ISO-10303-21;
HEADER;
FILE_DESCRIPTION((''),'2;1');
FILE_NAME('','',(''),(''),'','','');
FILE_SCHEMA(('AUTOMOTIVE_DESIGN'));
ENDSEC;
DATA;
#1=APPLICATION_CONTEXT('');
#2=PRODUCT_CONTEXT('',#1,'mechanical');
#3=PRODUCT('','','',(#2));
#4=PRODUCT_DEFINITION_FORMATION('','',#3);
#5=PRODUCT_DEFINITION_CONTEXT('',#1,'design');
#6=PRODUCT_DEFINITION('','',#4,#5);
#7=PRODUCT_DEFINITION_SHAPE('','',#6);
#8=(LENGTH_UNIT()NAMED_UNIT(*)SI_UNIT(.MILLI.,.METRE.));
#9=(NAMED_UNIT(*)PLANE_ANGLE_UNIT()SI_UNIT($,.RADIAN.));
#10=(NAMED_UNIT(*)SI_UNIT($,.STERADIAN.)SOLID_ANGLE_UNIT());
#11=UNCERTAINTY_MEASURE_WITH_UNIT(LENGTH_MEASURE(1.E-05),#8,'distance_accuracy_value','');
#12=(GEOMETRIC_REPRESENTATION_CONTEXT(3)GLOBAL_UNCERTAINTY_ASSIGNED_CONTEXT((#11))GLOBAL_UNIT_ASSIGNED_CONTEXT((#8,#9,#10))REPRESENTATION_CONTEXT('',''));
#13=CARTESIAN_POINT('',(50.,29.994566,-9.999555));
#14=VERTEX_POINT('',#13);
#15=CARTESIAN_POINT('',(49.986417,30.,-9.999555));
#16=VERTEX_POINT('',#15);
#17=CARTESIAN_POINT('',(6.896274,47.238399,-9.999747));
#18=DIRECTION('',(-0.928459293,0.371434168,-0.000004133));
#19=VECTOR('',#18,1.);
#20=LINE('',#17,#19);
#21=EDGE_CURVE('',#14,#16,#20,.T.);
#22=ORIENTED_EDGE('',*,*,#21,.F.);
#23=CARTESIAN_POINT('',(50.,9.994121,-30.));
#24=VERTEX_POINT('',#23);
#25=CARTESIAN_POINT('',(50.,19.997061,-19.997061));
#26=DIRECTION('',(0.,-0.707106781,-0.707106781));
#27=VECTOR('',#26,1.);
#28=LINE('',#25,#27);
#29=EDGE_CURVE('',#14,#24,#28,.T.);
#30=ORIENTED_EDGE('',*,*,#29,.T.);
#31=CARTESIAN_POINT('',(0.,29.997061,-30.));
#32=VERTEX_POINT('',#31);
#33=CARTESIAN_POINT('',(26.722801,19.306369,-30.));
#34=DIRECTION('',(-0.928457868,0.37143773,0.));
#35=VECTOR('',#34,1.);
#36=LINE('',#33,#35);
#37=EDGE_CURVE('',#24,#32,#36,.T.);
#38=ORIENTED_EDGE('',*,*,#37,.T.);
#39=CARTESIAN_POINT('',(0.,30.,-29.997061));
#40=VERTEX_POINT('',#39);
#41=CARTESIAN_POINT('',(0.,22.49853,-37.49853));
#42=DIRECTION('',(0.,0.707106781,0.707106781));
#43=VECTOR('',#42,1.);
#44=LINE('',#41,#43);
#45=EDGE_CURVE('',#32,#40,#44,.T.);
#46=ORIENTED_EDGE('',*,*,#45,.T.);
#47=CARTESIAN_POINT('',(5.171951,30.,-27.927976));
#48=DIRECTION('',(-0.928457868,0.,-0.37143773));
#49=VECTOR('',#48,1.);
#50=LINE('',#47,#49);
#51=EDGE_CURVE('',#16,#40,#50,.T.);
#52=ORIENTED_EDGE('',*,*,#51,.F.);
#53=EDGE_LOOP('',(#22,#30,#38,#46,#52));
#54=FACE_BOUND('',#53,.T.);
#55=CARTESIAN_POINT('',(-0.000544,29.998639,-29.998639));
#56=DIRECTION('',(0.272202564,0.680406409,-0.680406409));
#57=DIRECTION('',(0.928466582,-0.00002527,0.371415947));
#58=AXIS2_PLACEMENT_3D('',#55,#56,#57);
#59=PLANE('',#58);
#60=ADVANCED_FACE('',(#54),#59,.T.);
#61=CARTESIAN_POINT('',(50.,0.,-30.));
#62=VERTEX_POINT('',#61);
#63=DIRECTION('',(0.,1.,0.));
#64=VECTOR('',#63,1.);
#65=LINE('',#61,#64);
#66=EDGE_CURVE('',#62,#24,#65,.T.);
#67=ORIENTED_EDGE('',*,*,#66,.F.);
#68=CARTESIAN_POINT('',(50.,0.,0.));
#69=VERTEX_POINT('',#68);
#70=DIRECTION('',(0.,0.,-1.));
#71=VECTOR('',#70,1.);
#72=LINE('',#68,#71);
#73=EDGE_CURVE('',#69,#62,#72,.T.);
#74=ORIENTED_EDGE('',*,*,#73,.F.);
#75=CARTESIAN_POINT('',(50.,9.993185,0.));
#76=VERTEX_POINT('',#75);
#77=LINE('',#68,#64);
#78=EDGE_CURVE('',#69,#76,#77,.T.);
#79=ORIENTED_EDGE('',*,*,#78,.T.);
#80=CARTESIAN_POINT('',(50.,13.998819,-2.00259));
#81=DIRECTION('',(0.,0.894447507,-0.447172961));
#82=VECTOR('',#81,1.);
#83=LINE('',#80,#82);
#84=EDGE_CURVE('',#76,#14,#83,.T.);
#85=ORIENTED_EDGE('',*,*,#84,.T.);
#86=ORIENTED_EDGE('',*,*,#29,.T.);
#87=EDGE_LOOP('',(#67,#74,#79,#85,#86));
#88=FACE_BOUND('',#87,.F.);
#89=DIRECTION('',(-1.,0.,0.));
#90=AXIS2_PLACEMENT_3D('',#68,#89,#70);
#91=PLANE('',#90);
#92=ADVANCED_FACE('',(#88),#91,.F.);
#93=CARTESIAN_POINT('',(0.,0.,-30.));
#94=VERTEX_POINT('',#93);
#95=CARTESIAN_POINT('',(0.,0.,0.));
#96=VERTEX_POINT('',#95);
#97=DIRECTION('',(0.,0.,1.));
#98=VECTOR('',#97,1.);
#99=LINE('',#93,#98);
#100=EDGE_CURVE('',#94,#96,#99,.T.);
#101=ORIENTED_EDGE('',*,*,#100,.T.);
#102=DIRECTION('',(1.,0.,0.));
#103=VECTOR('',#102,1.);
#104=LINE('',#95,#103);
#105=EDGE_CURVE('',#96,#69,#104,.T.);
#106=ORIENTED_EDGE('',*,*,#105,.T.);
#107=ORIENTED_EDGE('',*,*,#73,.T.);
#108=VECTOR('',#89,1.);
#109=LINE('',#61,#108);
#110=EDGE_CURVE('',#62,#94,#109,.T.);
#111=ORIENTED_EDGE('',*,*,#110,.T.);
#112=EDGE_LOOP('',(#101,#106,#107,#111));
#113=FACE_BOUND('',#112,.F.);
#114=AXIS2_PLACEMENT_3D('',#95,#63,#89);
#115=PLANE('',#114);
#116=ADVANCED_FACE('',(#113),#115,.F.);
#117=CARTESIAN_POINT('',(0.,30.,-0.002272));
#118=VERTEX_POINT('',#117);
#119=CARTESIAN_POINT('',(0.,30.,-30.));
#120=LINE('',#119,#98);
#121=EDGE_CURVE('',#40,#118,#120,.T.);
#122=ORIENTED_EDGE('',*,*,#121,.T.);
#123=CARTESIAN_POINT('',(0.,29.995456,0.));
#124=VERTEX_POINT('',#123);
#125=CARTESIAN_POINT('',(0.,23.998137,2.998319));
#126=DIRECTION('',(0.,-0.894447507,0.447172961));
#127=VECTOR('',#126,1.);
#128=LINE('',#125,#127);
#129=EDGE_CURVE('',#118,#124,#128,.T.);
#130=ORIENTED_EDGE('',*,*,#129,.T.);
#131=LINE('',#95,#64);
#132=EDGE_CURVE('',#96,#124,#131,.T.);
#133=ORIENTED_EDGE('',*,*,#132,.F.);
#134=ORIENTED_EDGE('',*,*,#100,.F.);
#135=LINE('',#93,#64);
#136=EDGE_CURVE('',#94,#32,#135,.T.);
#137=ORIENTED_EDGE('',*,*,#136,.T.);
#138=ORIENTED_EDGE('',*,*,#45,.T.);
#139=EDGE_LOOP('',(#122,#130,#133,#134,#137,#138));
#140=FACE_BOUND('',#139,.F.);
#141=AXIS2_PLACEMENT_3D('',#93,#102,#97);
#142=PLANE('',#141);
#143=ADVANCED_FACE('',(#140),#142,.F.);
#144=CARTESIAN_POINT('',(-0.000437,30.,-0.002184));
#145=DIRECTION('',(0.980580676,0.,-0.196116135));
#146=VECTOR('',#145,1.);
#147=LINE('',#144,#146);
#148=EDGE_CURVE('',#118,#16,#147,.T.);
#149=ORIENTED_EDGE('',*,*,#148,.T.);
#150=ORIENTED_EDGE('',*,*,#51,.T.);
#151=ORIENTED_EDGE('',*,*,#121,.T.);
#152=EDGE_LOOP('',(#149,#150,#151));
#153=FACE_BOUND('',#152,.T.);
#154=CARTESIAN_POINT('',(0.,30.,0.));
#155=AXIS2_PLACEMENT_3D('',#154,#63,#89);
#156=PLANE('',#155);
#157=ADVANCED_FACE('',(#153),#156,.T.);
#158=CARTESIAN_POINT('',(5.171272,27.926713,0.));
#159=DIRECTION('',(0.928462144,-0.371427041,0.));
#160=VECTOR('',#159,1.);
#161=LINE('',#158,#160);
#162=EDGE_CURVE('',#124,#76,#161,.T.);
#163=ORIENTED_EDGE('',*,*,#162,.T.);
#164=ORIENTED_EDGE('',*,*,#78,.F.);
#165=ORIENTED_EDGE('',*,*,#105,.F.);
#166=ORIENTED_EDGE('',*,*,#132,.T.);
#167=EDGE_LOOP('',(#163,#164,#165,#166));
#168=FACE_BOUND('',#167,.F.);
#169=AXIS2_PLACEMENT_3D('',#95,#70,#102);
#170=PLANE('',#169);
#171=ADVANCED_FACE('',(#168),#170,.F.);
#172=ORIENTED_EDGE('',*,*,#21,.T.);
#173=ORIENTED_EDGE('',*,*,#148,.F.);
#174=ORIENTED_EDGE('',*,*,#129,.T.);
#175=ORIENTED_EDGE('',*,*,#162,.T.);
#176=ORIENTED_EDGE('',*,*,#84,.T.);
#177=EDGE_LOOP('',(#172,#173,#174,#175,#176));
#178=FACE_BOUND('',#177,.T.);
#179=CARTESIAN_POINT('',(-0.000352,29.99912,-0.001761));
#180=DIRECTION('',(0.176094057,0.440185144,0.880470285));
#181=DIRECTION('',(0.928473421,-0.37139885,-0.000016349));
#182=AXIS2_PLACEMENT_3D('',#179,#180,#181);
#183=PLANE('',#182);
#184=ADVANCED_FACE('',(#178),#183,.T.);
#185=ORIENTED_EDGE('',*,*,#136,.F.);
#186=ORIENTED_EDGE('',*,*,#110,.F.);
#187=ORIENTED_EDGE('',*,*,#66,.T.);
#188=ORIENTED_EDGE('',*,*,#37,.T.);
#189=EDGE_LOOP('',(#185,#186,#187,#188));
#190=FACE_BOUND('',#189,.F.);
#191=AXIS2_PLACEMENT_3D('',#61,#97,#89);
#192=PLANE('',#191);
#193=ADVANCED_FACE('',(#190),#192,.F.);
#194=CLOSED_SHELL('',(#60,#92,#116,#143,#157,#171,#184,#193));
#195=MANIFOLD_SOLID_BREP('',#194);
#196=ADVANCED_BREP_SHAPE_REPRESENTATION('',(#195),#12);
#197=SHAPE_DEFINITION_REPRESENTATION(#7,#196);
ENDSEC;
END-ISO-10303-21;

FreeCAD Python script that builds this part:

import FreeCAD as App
import Part
import Sketcher
from FreeCAD import Vector
Q = App.Units.Quantity


def add_polygon(sketch, points):
    """Adds a closed chain of lines whose ends are joined by coincident constraints."""
    first, n = sketch.GeometryCount, len(points)
    for a, b in zip(points, points[1:] + points[:1]):
        sketch.addGeometry(Part.LineSegment(App.Vector(*a, 0), App.Vector(*b, 0)), False)
    for i in range(n):
        sketch.addConstraint(Sketcher.Constraint("Coincident", first + i, 2, first + (i + 1) % n, 1))

doc = App.newDocument("Part")
params = doc.addObject("Spreadsheet::Sheet", "Params")
for row, (alias, value) in enumerate([
    ("sketch1_width", "50 mm"),
    ("sketch1_height", "30 mm"),
    ("pad1_length", "30 mm"),
    ("pocket1_length", "30 mm"),
    ("pocket2_length", "30 mm"),
], start=1):
    params.set(f"A{row}", alias)
    params.set(f"B{row}", "=" + value)
    params.setAlias(f"B{row}", alias)

body = doc.addObject("PartDesign::Body", "Body")

# Sketch on XZ plane
sketch1 = body.newObject("Sketcher::SketchObject", "Sketch")
sketch1.AttachmentSupport = (doc.getObject("XZ_Plane"), [""])
sketch1.MapMode = "FlatFace"
add_polygon(sketch1, [(0, -30), (0, 0), (50, 0), (50, -30)])  # lines 0-3
sketch1.addConstraint([
    Sketcher.Constraint("Vertical", 0),
    Sketcher.Constraint("Horizontal", 1),
    Sketcher.Constraint("Vertical", 2),
    Sketcher.Constraint("Horizontal", 3),
    Sketcher.Constraint("Coincident", 0, 2, -1, 1),
    Sketcher.Constraint("DistanceX", 1, 1, 1, 2, Q("50 mm")),
    Sketcher.Constraint("DistanceY", 0, 1, 0, 2, Q("30 mm")),
])
sketch1.setExpression("Constraints[9]", "Params.sketch1_width")
sketch1.setExpression("Constraints[10]", "Params.sketch1_height")
pad1 = body.newObject("PartDesign::Pad", "Pad")
pad1.Profile = sketch1
pad1.setExpression("Length", "Params.pad1_length")
pad1.Reversed = True

# Sketch on an angled plane
sketch2 = body.newObject("Sketcher::SketchObject", "Sketch001")
sketch2.Placement = App.Placement(Vector(0, 30, 0), App.Rotation(Vector(0.928473421, -0.37139885, -0.000016349), Vector(0.326998455, 0.817496137, -0.474101337), Vector(0.176094057, 0.440185144, 0.880470285), "ZXY"))
add_polygon(sketch2, [(89, 27), (-15, 27), (-15, -21), (89, -21)])  # lines 0-3
sketch2.addConstraint([
    Sketcher.Constraint("Horizontal", 0),
    Sketcher.Constraint("Vertical", 1),
    Sketcher.Constraint("Horizontal", 2),
    Sketcher.Constraint("Vertical", 3),
    Sketcher.Constraint("DistanceX", 0, 2, 0, 1, Q("104.152 mm")),
    Sketcher.Constraint("DistanceY", 1, 2, 1, 1, Q("48.3168 mm")),
    Sketcher.Constraint("DistanceX", 0, 2, -1, 1, Q("15.449 mm")),
    Sketcher.Constraint("DistanceY", -1, 1, 0, 2, Q("27.3305 mm")),
])
pocket1 = body.newObject("PartDesign::Pocket", "Pocket")
pocket1.Profile = sketch2
pocket1.setExpression("Length", "Params.pocket1_length")
pocket1.Reversed = True

# Sketch on an angled plane
sketch3 = body.newObject("Sketcher::SketchObject", "Sketch002")
sketch3.Placement = App.Placement(Vector(0, 30, -30), App.Rotation(Vector(0.928466582, -0.00002527, 0.371415947), Vector(0.252696597, -0.732834986, -0.631741491), Vector(0.272202564, 0.680406409, -0.680406409), "ZXY"))
add_polygon(sketch3, [(-24, -12), (63, -12), (63, 29), (-24, 29)])  # lines 0-3
sketch3.addConstraint([
    Sketcher.Constraint("Horizontal", 0),
    Sketcher.Constraint("Vertical", 1),
    Sketcher.Constraint("Horizontal", 2),
    Sketcher.Constraint("Vertical", 3),
    Sketcher.Constraint("DistanceX", 0, 1, 0, 2, Q("87.4567 mm")),
    Sketcher.Constraint("DistanceY", 1, 1, 1, 2, Q("40.7983 mm")),
    Sketcher.Constraint("DistanceX", -1, 1, 0, 2, Q("63.1624 mm")),
    Sketcher.Constraint("DistanceY", 0, 2, -1, 1, Q("12.2255 mm")),
])
pocket2 = body.newObject("PartDesign::Pocket", "Pocket001")
pocket2.Profile = sketch3
pocket2.setExpression("Length", "Params.pocket2_length")
pocket2.Reversed = True

doc.recompute()
